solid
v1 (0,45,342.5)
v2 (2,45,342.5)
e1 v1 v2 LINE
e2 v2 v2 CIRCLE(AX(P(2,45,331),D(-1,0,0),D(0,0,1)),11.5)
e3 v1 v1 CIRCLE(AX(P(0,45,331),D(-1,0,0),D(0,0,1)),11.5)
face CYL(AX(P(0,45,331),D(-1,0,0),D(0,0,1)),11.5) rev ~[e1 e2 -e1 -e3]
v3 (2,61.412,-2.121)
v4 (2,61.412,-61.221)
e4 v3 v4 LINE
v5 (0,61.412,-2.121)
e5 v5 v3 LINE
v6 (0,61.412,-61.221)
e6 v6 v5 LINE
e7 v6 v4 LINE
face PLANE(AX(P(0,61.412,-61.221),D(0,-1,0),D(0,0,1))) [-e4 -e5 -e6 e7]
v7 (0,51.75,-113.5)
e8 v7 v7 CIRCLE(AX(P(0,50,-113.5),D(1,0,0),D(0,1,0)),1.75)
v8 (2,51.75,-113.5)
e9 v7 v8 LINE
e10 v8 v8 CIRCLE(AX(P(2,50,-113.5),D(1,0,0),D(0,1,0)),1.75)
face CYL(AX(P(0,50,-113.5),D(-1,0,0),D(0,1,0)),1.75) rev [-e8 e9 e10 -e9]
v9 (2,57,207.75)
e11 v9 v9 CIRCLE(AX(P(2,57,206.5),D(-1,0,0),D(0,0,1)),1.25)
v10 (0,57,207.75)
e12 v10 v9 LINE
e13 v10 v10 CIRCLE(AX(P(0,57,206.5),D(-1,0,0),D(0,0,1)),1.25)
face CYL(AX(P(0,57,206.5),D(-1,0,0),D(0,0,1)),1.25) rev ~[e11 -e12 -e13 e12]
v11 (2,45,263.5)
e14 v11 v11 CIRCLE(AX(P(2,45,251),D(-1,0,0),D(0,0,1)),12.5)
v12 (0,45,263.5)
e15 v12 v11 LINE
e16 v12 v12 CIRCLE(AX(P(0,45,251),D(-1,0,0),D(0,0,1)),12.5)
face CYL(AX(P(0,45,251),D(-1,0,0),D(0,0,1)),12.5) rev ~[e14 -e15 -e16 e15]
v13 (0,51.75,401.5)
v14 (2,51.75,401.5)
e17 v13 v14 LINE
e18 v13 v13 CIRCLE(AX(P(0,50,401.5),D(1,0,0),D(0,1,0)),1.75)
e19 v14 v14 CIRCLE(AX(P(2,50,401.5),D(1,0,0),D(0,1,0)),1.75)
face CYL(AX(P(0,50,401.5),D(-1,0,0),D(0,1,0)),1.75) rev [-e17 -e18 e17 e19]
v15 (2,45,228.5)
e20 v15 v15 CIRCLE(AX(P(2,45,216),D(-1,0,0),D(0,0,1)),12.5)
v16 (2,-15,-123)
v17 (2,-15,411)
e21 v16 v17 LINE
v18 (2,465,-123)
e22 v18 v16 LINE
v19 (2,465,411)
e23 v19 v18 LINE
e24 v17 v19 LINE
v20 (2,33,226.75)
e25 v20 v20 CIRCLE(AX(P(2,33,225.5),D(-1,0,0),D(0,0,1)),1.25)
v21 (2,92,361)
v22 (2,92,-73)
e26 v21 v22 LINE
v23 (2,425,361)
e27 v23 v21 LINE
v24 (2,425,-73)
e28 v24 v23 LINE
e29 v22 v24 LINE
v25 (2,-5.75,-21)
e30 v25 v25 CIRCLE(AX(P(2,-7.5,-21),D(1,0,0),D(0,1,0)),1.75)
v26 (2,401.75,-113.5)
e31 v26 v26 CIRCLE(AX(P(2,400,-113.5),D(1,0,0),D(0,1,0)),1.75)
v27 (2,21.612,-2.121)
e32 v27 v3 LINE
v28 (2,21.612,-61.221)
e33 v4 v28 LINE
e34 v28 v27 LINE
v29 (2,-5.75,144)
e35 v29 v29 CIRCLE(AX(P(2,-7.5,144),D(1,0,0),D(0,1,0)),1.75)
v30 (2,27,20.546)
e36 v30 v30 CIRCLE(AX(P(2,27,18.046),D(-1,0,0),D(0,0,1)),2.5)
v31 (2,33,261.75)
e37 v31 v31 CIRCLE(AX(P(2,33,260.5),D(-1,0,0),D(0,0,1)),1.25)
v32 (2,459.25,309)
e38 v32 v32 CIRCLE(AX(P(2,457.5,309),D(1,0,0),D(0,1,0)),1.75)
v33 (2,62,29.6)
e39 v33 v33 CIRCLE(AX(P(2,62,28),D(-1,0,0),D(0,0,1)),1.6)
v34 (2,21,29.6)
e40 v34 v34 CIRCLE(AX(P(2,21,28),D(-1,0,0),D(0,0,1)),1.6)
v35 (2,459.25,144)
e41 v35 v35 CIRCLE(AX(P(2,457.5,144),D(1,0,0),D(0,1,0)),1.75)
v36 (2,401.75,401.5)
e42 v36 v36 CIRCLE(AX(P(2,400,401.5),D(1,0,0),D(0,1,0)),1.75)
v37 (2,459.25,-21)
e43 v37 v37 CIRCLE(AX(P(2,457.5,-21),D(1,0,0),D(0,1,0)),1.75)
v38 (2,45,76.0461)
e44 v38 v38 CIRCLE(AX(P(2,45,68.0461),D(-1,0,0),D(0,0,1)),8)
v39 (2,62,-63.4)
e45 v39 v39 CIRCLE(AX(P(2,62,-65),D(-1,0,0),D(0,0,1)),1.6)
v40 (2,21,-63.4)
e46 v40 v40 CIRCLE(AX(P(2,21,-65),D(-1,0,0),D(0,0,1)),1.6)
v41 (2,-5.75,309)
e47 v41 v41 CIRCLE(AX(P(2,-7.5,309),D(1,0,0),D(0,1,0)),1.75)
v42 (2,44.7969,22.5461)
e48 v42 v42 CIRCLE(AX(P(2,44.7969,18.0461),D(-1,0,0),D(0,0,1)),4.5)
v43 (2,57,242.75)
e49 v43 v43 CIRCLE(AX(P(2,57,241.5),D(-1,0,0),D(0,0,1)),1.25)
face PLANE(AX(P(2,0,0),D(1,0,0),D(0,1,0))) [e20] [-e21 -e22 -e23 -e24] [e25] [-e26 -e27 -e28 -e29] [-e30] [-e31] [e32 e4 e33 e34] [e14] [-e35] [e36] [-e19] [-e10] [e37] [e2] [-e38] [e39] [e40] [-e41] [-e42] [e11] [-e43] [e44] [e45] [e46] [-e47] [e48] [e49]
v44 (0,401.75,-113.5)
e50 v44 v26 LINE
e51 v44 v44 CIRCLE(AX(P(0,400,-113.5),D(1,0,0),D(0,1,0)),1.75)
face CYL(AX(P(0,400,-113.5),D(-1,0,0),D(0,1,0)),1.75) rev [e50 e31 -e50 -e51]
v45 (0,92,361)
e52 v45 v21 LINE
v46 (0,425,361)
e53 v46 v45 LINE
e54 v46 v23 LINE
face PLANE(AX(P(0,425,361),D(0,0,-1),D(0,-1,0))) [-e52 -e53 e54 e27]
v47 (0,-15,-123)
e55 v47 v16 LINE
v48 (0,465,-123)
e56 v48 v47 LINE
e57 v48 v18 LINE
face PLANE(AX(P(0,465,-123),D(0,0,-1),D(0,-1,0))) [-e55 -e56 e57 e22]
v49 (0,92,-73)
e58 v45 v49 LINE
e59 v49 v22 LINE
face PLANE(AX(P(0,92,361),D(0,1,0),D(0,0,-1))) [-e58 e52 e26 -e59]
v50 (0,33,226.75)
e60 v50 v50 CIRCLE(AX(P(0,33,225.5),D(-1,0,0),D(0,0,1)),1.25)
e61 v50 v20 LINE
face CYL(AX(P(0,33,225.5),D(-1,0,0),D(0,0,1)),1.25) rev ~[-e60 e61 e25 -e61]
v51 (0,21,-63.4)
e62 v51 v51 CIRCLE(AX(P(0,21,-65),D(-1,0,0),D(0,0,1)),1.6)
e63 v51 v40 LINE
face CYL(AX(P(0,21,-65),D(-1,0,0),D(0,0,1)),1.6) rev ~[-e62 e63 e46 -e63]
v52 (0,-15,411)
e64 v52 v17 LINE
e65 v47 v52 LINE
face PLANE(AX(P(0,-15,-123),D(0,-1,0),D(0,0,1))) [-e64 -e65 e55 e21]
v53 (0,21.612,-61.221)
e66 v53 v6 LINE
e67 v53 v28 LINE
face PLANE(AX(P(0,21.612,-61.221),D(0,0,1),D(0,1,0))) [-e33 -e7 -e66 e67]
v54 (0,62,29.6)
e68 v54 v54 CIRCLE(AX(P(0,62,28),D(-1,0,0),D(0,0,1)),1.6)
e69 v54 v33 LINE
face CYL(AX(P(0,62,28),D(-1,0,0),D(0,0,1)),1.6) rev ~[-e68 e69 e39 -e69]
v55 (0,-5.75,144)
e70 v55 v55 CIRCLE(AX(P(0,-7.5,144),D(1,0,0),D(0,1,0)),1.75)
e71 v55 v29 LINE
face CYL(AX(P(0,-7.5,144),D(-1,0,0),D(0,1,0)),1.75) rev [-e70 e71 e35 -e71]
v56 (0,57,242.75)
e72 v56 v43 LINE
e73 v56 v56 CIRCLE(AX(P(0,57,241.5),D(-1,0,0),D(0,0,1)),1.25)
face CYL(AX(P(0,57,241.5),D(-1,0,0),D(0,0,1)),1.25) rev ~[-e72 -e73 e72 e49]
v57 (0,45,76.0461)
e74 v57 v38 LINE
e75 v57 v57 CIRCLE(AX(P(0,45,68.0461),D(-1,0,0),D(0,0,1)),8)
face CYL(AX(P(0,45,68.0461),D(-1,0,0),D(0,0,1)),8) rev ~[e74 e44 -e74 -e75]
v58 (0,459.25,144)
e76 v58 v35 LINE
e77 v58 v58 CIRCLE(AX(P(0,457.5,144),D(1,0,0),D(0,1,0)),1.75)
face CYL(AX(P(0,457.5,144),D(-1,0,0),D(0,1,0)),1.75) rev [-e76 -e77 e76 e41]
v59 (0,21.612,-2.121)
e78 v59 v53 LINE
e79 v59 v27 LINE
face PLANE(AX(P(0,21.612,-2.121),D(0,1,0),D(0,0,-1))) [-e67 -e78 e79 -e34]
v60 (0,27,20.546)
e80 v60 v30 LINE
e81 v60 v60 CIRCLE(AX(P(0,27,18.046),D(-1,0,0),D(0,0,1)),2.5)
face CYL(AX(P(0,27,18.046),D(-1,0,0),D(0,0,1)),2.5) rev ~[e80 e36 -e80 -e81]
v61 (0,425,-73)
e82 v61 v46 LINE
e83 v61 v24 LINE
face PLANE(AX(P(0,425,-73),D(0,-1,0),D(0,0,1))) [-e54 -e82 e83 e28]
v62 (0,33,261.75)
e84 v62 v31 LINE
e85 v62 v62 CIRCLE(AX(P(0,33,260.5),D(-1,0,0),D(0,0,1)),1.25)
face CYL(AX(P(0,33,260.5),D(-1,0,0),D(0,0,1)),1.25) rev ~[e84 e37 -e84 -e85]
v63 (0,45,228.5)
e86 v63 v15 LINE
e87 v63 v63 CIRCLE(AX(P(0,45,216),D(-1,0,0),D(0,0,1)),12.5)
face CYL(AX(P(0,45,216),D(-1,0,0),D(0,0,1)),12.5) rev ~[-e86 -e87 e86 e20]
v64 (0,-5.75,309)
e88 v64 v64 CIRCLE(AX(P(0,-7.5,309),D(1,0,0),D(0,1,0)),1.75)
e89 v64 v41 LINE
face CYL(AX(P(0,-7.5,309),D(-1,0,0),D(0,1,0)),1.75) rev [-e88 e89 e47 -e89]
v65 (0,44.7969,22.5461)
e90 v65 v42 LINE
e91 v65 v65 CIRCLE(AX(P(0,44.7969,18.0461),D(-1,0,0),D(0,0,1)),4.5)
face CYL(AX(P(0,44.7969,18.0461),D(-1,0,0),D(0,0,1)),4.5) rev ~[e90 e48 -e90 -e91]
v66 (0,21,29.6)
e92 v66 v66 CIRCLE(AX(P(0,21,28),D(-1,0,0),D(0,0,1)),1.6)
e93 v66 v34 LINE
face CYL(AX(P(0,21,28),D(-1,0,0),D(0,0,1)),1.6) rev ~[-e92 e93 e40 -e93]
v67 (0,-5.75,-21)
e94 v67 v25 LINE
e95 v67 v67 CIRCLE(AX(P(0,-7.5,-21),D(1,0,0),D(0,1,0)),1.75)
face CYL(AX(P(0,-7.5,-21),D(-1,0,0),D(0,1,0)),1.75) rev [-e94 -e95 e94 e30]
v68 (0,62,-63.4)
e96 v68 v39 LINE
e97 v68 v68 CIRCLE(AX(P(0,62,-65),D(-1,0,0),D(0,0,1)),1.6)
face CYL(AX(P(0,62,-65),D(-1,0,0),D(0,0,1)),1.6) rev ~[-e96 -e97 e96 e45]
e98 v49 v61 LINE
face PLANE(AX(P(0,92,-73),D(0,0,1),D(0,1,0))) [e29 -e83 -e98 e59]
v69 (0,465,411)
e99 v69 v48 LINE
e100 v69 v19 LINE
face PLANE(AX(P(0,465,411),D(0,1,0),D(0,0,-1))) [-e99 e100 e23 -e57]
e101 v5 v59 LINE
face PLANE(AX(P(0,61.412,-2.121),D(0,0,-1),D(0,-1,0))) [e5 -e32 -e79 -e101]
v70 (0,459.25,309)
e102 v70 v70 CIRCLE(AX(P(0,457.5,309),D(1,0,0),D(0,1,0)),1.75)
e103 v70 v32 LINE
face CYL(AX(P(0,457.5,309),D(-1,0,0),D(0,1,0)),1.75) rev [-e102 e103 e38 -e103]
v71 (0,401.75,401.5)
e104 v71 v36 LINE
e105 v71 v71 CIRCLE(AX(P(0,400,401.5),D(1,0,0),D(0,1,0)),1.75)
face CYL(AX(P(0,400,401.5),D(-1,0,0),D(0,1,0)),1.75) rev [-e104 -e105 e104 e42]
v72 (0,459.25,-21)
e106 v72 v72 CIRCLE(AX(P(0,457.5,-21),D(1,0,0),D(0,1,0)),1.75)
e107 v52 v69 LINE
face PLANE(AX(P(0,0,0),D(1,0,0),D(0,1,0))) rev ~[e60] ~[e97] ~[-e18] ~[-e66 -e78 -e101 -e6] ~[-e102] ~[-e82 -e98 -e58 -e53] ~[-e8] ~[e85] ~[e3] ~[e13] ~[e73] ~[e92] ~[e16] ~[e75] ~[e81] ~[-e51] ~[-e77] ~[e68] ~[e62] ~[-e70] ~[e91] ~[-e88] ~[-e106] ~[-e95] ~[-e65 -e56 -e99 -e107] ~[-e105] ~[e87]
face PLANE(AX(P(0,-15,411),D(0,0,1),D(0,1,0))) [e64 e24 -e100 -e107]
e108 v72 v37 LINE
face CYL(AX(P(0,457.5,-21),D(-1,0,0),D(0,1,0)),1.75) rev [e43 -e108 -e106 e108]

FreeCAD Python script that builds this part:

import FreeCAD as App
import Part
import Sketcher

doc = App.newDocument("Part")
body = doc.addObject("PartDesign::Body", "Body")

sketch1 = body.newObject("Sketcher::SketchObject", "Sketch")
sketch1.AttachmentSupport = (doc.getObject("YZ_Plane"), [""])
sketch1.MapMode = "FlatFace"
sketch1.addGeometry(Part.LineSegment(App.Vector(465, -123, 0), App.Vector(465, 411, 0)), False)
sketch1.addGeometry(Part.LineSegment(App.Vector(465, 411, 0), App.Vector(-15, 411, 0)), False)
sketch1.addGeometry(Part.LineSegment(App.Vector(-15, 411, 0), App.Vector(-15, -123, 0)), False)
sketch1.addGeometry(Part.LineSegment(App.Vector(-15, -123, 0), App.Vector(465, -123, 0)), False)
sketch1.addGeometry(Part.Circle(App.Vector(50, -113.5, 0), App.Vector(0, 0, 1), 1.8), False)
sketch1.addGeometry(Part.Circle(App.Vector(-7.5, -21, 0), App.Vector(0, 0, 1), 1.8), False)
sketch1.addGeometry(Part.Circle(App.Vector(400, -113.5, 0), App.Vector(0, 0, 1), 1.8), False)
sketch1.addGeometry(Part.Circle(App.Vector(457.5, -21, 0), App.Vector(0, 0, 1), 1.8), False)
sketch1.addGeometry(Part.Circle(App.Vector(-7.5, 144, 0), App.Vector(0, 0, 1), 1.8), False)
sketch1.addGeometry(Part.Circle(App.Vector(-7.5, 309, 0), App.Vector(0, 0, 1), 1.8), False)
sketch1.addGeometry(Part.Circle(App.Vector(50, 401.5, 0), App.Vector(0, 0, 1), 1.8), False)
sketch1.addGeometry(Part.Circle(App.Vector(457.5, 144, 0), App.Vector(0, 0, 1), 1.8), False)
sketch1.addGeometry(Part.Circle(App.Vector(457.5, 309, 0), App.Vector(0, 0, 1), 1.8), False)
sketch1.addGeometry(Part.Circle(App.Vector(400, 401.5, 0), App.Vector(0, 0, 1), 1.8), False)
sketch1.addConstraint(Sketcher.Constraint("Coincident", 0, 2, 1, 1))
sketch1.addConstraint(Sketcher.Constraint("Coincident", 1, 2, 2, 1))
sketch1.addConstraint(Sketcher.Constraint("Coincident", 2, 2, 3, 1))
sketch1.addConstraint(Sketcher.Constraint("Coincident", 3, 2, 0, 1))
sketch1.addConstraint(Sketcher.Constraint("Vertical", 0))
sketch1.addConstraint(Sketcher.Constraint("Horizontal", 1))
sketch1.addConstraint(Sketcher.Constraint("Vertical", 2))
sketch1.addConstraint(Sketcher.Constraint("Horizontal", 3))
sketch1.addConstraint(Sketcher.Constraint("Equal", 4, 5))
sketch1.addConstraint(Sketcher.Constraint("Equal", 5, 6))
sketch1.addConstraint(Sketcher.Constraint("Equal", 6, 7))
sketch1.addConstraint(Sketcher.Constraint("Equal", 7, 8))
sketch1.addConstraint(Sketcher.Constraint("Equal", 8, 9))
sketch1.addConstraint(Sketcher.Constraint("Equal", 9, 10))
sketch1.addConstraint(Sketcher.Constraint("Equal", 10, 11))
sketch1.addConstraint(Sketcher.Constraint("Equal", 11, 12))
sketch1.addConstraint(Sketcher.Constraint("Equal", 12, 13))
sketch1.addConstraint(Sketcher.Constraint("Horizontal", 4, 3, 6, 3))
sketch1.addConstraint(Sketcher.Constraint("Horizontal", 5, 3, 7, 3))
sketch1.addConstraint(Sketcher.Constraint("Horizontal", 8, 3, 11, 3))
sketch1.addConstraint(Sketcher.Constraint("Horizontal", 9, 3, 12, 3))
sketch1.addConstraint(Sketcher.Constraint("Horizontal", 10, 3, 13, 3))
sketch1.addConstraint(Sketcher.Constraint("Vertical", 5, 3, 8, 3))
sketch1.addConstraint(Sketcher.Constraint("Vertical", 8, 3, 9, 3))
sketch1.addConstraint(Sketcher.Constraint("Vertical", 4, 3, 10, 3))
sketch1.addConstraint(Sketcher.Constraint("Vertical", 7, 3, 11, 3))
sketch1.addConstraint(Sketcher.Constraint("Vertical", 11, 3, 12, 3))
sketch1.addConstraint(Sketcher.Constraint("Vertical", 6, 3, 13, 3))
sketch1.addConstraint(Sketcher.Constraint("Diameter", 4, 3.5))
sketch1.addConstraint(Sketcher.Constraint("DistanceX", 1, 2, 1, 1, 480.0))
sketch1.addConstraint(Sketcher.Constraint("DistanceY", 0, 1, 0, 2, 534.0))
sketch1.addConstraint(Sketcher.Constraint("DistanceX", -1, 1, 4, 3, 50.0))
sketch1.addConstraint(Sketcher.Constraint("DistanceY", 5, 3, -1, 1, 21.0))
sketch1.addConstraint(Sketcher.Constraint("DistanceX", -1, 1, 6, 3, 400.0))
sketch1.addConstraint(Sketcher.Constraint("DistanceY", -1, 1, 8, 3, 144.0))
sketch1.addConstraint(Sketcher.Constraint("DistanceY", -1, 1, 9, 3, 309.0))
sketch1.addConstraint(Sketcher.Constraint("DistanceX", -1, 1, 0, 2, 465.0))
sketch1.addConstraint(Sketcher.Constraint("DistanceY", -1, 1, 0, 2, 411.0))
sketch1.addConstraint(Sketcher.Constraint("DistanceX", 5, 3, 7, 3, 465.0))
sketch1.addConstraint(Sketcher.Constraint("DistanceY", 4, 3, 10, 3, 515.0))
sketch1.addConstraint(Sketcher.Constraint("DistanceY", 4, 3, -1, 1, 113.5))
sketch1.addConstraint(Sketcher.Constraint("DistanceX", 5, 3, -1, 1, 7.5))
pad1 = body.newObject("PartDesign::Pad", "Pad")
pad1.Profile = sketch1
pad1.Length = 2

sketch2 = body.newObject("Sketcher::SketchObject", "Sketch001")
sketch2.AttachmentSupport = (doc.getObject("YZ_Plane"), [""])
sketch2.MapMode = "FlatFace"
sketch2.addGeometry(Part.LineSegment(App.Vector(425, 361, 0), App.Vector(425, -73, 0)), False)
sketch2.addGeometry(Part.LineSegment(App.Vector(425, -73, 0), App.Vector(92, -73, 0)), False)
sketch2.addGeometry(Part.LineSegment(App.Vector(92, -73, 0), App.Vector(92, 361, 0)), False)
sketch2.addGeometry(Part.LineSegment(App.Vector(92, 361, 0), App.Vector(425, 361, 0)), False)
sketch2.addConstraint(Sketcher.Constraint("Coincident", 0, 2, 1, 1))
sketch2.addConstraint(Sketcher.Constraint("Coincident", 1, 2, 2, 1))
sketch2.addConstraint(Sketcher.Constraint("Coincident", 2, 2, 3, 1))
sketch2.addConstraint(Sketcher.Constraint("Coincident", 3, 2, 0, 1))
sketch2.addConstraint(Sketcher.Constraint("Vertical", 0))
sketch2.addConstraint(Sketcher.Constraint("Horizontal", 1))
sketch2.addConstraint(Sketcher.Constraint("Vertical", 2))
sketch2.addConstraint(Sketcher.Constraint("Horizontal", 3))
sketch2.addConstraint(Sketcher.Constraint("DistanceX", 1, 2, 1, 1, 333.0))
sketch2.addConstraint(Sketcher.Constraint("DistanceY", 0, 2, 0, 1, 434.0))
sketch2.addConstraint(Sketcher.Constraint("DistanceX", -1, 1, 0, 2, 425.0))
sketch2.addConstraint(Sketcher.Constraint("DistanceY", 0, 2, -1, 1, 73.0))
pocket1 = body.newObject("PartDesign::Pocket", "Pocket")
pocket1.Profile = sketch2
pocket1.Length = 2
pocket1.Reversed = True

sketch3 = body.newObject("Sketcher::SketchObject", "Sketch002")
sketch3.AttachmentSupport = (doc.getObject("YZ_Plane"), [""])
sketch3.MapMode = "FlatFace"
sketch3.addGeometry(Part.Circle(App.Vector(45, 331, 0), App.Vector(0, 0, 1), 11.5), False)
sketch3.addGeometry(Part.Circle(App.Vector(44.8, 18, 0), App.Vector(0, 0, 1), 4.5), False)
sketch3.addGeometry(Part.Circle(App.Vector(27, 18, 0), App.Vector(0, 0, 1), 2.5), False)
sketch3.addGeometry(Part.LineSegment(App.Vector(61.4, -2.1, 0), App.Vector(61.4, -61.2, 0)), False)
sketch3.addGeometry(Part.LineSegment(App.Vector(61.4, -61.2, 0), App.Vector(21.6, -61.2, 0)), False)
sketch3.addGeometry(Part.LineSegment(App.Vector(21.6, -61.2, 0), App.Vector(21.6, -2.1, 0)), False)
sketch3.addGeometry(Part.LineSegment(App.Vector(21.6, -2.1, 0), App.Vector(61.4, -2.1, 0)), False)
sketch3.addGeometry(Part.Circle(App.Vector(62, -65, 0), App.Vector(0, 0, 1), 1.6), False)
sketch3.addGeometry(Part.Circle(App.Vector(21, -65, 0), App.Vector(0, 0, 1), 1.6), False)
sketch3.addGeometry(Part.Circle(App.Vector(62, 28, 0), App.Vector(0, 0, 1), 1.6), False)
sketch3.addGeometry(Part.Circle(App.Vector(21, 28, 0), App.Vector(0, 0, 1), 1.6), False)
sketch3.addGeometry(Part.Circle(App.Vector(45, 251, 0), App.Vector(0, 0, 1), 12.5), False)
sketch3.addGeometry(Part.Circle(App.Vector(57, 241.5, 0), App.Vector(0, 0, 1), 1.2), False)
sketch3.addGeometry(Part.Circle(App.Vector(33, 260.5, 0), App.Vector(0, 0, 1), 1.2), False)
sketch3.addGeometry(Part.Circle(App.Vector(33, 225.5, 0), App.Vector(0, 0, 1), 1.2), False)
sketch3.addGeometry(Part.Circle(App.Vector(57, 206.5, 0), App.Vector(0, 0, 1), 1.2), False)
sketch3.addGeometry(Part.Circle(App.Vector(45, 216, 0), App.Vector(0, 0, 1), 12.5), False)
sketch3.addGeometry(Part.Circle(App.Vector(45, 68, 0), App.Vector(0, 0, 1), 8), False)
sketch3.addConstraint(Sketcher.Constraint("Coincident", 3, 2, 4, 1))
sketch3.addConstraint(Sketcher.Constraint("Coincident", 4, 2, 5, 1))
sketch3.addConstraint(Sketcher.Constraint("Coincident", 5, 2, 6, 1))
sketch3.addConstraint(Sketcher.Constraint("Coincident", 6, 2, 3, 1))
sketch3.addConstraint(Sketcher.Constraint("Vertical", 3))
sketch3.addConstraint(Sketcher.Constraint("Horizontal", 4))
sketch3.addConstraint(Sketcher.Constraint("Vertical", 5))
sketch3.addConstraint(Sketcher.Constraint("Horizontal", 6))
sketch3.addConstraint(Sketcher.Constraint("Equal", 7, 8))
sketch3.addConstraint(Sketcher.Constraint("Equal", 8, 9))
sketch3.addConstraint(Sketcher.Constraint("Equal", 9, 10))
sketch3.addConstraint(Sketcher.Constraint("Equal", 12, 13))
sketch3.addConstraint(Sketcher.Constraint("Equal", 13, 14))
sketch3.addConstraint(Sketcher.Constraint("Equal", 14, 15))
sketch3.addConstraint(Sketcher.Constraint("Equal", 11, 16))
sketch3.addConstraint(Sketcher.Constraint("Horizontal", 1, 3, 2, 3))
sketch3.addConstraint(Sketcher.Constraint("Horizontal", 7, 3, 8, 3))
sketch3.addConstraint(Sketcher.Constraint("Horizontal", 9, 3, 10, 3))
sketch3.addConstraint(Sketcher.Constraint("Vertical", 7, 3, 9, 3))
sketch3.addConstraint(Sketcher.Constraint("Vertical", 8, 3, 10, 3))
sketch3.addConstraint(Sketcher.Constraint("Vertical", 0, 3, 11, 3))
sketch3.addConstraint(Sketcher.Constraint("Vertical", 13, 3, 14, 3))
sketch3.addConstraint(Sketcher.Constraint("Vertical", 12, 3, 15, 3))
sketch3.addConstraint(Sketcher.Constraint("Vertical", 11, 3, 16, 3))
sketch3.addConstraint(Sketcher.Constraint("Vertical", 16, 3, 17, 3))
sketch3.addConstraint(Sketcher.Constraint("Diameter", 0, 23.0))
sketch3.addConstraint(Sketcher.Constraint("Diameter", 1, 9.0))
sketch3.addConstraint(Sketcher.Constraint("Diameter", 2, 5.0))
sketch3.addConstraint(Sketcher.Constraint("Diameter", 11, 25.0))
sketch3.addConstraint(Sketcher.Constraint("Diameter", 17, 16.0))
sketch3.addConstraint(Sketcher.Constraint("Diameter", 12, 2.5))
sketch3.addConstraint(Sketcher.Constraint("DistanceX", 2, 3, 7, 3, 35.0))
sketch3.addConstraint(Sketcher.Constraint("DistanceY", 11, 3, 0, 3, 80.0))
sketch3.addConstraint(Sketcher.Constraint("DistanceX", 11, 3, 12, 3, 12.0))
sketch3.addConstraint(Sketcher.Constraint("DistanceX", 12, 3, 9, 3, 5.0))
sketch3.addConstraint(Sketcher.Constraint("DistanceX", 13, 3, 11, 3, 12.0))
sketch3.addConstraint(Sketcher.Constraint("DistanceX", 10, 3, 13, 3, 12.0))
sketch3.addConstraint(Sketcher.Constraint("DistanceY", 14, 3, 12, 3, 16.0))
sketch3.addConstraint(Sketcher.Constraint("DistanceY", 14, 3, 13, 3, 35.0))
sketch3.addConstraint(Sketcher.Constraint("DistanceY", 15, 3, 12, 3, 35.0))
sketch3.addConstraint(Sketcher.Constraint("DistanceY", 16, 3, 11, 3, 35.0))
sketch3.addConstraint(Sketcher.Constraint("DistanceY", 1, 3, 17, 3, 50.0))
sketch3.addConstraint(Sketcher.Constraint("Diameter", 7, 3.2))
sketch3.addConstraint(Sketcher.Constraint("DistanceY", 12, 3, 11, 3, 9.5))
sketch3.addConstraint(Sketcher.Constraint("DistanceX", 4, 2, 4, 1, 39.8))
sketch3.addConstraint(Sketcher.Constraint("DistanceY", 3, 2, 3, 1, 59.1))
sketch3.addConstraint(Sketcher.Constraint("DistanceX", -1, 1, 0, 3, 45.0))
sketch3.addConstraint(Sketcher.Constraint("DistanceY", -1, 1, 0, 3, 331.0))
sketch3.addConstraint(Sketcher.Constraint("DistanceY", 7, 3, -1, 1, 65.0))
sketch3.addConstraint(Sketcher.Constraint("DistanceY", -1, 1, 9, 3, 28.0))
sketch3.addConstraint(Sketcher.Constraint("DistanceX", -1, 1, 1, 3, 44.797))
sketch3.addConstraint(Sketcher.Constraint("DistanceY", -1, 1, 1, 3, 18.046))
sketch3.addConstraint(Sketcher.Constraint("DistanceX", -1, 1, 3, 2, 61.412))
sketch3.addConstraint(Sketcher.Constraint("DistanceY", 3, 2, -1, 1, 61.221))
pocket2 = body.newObject("PartDesign::Pocket", "Pocket001")
pocket2.Profile = sketch3
pocket2.Type = "ThroughAll"
pocket2.Reversed = True

doc.recompute()
